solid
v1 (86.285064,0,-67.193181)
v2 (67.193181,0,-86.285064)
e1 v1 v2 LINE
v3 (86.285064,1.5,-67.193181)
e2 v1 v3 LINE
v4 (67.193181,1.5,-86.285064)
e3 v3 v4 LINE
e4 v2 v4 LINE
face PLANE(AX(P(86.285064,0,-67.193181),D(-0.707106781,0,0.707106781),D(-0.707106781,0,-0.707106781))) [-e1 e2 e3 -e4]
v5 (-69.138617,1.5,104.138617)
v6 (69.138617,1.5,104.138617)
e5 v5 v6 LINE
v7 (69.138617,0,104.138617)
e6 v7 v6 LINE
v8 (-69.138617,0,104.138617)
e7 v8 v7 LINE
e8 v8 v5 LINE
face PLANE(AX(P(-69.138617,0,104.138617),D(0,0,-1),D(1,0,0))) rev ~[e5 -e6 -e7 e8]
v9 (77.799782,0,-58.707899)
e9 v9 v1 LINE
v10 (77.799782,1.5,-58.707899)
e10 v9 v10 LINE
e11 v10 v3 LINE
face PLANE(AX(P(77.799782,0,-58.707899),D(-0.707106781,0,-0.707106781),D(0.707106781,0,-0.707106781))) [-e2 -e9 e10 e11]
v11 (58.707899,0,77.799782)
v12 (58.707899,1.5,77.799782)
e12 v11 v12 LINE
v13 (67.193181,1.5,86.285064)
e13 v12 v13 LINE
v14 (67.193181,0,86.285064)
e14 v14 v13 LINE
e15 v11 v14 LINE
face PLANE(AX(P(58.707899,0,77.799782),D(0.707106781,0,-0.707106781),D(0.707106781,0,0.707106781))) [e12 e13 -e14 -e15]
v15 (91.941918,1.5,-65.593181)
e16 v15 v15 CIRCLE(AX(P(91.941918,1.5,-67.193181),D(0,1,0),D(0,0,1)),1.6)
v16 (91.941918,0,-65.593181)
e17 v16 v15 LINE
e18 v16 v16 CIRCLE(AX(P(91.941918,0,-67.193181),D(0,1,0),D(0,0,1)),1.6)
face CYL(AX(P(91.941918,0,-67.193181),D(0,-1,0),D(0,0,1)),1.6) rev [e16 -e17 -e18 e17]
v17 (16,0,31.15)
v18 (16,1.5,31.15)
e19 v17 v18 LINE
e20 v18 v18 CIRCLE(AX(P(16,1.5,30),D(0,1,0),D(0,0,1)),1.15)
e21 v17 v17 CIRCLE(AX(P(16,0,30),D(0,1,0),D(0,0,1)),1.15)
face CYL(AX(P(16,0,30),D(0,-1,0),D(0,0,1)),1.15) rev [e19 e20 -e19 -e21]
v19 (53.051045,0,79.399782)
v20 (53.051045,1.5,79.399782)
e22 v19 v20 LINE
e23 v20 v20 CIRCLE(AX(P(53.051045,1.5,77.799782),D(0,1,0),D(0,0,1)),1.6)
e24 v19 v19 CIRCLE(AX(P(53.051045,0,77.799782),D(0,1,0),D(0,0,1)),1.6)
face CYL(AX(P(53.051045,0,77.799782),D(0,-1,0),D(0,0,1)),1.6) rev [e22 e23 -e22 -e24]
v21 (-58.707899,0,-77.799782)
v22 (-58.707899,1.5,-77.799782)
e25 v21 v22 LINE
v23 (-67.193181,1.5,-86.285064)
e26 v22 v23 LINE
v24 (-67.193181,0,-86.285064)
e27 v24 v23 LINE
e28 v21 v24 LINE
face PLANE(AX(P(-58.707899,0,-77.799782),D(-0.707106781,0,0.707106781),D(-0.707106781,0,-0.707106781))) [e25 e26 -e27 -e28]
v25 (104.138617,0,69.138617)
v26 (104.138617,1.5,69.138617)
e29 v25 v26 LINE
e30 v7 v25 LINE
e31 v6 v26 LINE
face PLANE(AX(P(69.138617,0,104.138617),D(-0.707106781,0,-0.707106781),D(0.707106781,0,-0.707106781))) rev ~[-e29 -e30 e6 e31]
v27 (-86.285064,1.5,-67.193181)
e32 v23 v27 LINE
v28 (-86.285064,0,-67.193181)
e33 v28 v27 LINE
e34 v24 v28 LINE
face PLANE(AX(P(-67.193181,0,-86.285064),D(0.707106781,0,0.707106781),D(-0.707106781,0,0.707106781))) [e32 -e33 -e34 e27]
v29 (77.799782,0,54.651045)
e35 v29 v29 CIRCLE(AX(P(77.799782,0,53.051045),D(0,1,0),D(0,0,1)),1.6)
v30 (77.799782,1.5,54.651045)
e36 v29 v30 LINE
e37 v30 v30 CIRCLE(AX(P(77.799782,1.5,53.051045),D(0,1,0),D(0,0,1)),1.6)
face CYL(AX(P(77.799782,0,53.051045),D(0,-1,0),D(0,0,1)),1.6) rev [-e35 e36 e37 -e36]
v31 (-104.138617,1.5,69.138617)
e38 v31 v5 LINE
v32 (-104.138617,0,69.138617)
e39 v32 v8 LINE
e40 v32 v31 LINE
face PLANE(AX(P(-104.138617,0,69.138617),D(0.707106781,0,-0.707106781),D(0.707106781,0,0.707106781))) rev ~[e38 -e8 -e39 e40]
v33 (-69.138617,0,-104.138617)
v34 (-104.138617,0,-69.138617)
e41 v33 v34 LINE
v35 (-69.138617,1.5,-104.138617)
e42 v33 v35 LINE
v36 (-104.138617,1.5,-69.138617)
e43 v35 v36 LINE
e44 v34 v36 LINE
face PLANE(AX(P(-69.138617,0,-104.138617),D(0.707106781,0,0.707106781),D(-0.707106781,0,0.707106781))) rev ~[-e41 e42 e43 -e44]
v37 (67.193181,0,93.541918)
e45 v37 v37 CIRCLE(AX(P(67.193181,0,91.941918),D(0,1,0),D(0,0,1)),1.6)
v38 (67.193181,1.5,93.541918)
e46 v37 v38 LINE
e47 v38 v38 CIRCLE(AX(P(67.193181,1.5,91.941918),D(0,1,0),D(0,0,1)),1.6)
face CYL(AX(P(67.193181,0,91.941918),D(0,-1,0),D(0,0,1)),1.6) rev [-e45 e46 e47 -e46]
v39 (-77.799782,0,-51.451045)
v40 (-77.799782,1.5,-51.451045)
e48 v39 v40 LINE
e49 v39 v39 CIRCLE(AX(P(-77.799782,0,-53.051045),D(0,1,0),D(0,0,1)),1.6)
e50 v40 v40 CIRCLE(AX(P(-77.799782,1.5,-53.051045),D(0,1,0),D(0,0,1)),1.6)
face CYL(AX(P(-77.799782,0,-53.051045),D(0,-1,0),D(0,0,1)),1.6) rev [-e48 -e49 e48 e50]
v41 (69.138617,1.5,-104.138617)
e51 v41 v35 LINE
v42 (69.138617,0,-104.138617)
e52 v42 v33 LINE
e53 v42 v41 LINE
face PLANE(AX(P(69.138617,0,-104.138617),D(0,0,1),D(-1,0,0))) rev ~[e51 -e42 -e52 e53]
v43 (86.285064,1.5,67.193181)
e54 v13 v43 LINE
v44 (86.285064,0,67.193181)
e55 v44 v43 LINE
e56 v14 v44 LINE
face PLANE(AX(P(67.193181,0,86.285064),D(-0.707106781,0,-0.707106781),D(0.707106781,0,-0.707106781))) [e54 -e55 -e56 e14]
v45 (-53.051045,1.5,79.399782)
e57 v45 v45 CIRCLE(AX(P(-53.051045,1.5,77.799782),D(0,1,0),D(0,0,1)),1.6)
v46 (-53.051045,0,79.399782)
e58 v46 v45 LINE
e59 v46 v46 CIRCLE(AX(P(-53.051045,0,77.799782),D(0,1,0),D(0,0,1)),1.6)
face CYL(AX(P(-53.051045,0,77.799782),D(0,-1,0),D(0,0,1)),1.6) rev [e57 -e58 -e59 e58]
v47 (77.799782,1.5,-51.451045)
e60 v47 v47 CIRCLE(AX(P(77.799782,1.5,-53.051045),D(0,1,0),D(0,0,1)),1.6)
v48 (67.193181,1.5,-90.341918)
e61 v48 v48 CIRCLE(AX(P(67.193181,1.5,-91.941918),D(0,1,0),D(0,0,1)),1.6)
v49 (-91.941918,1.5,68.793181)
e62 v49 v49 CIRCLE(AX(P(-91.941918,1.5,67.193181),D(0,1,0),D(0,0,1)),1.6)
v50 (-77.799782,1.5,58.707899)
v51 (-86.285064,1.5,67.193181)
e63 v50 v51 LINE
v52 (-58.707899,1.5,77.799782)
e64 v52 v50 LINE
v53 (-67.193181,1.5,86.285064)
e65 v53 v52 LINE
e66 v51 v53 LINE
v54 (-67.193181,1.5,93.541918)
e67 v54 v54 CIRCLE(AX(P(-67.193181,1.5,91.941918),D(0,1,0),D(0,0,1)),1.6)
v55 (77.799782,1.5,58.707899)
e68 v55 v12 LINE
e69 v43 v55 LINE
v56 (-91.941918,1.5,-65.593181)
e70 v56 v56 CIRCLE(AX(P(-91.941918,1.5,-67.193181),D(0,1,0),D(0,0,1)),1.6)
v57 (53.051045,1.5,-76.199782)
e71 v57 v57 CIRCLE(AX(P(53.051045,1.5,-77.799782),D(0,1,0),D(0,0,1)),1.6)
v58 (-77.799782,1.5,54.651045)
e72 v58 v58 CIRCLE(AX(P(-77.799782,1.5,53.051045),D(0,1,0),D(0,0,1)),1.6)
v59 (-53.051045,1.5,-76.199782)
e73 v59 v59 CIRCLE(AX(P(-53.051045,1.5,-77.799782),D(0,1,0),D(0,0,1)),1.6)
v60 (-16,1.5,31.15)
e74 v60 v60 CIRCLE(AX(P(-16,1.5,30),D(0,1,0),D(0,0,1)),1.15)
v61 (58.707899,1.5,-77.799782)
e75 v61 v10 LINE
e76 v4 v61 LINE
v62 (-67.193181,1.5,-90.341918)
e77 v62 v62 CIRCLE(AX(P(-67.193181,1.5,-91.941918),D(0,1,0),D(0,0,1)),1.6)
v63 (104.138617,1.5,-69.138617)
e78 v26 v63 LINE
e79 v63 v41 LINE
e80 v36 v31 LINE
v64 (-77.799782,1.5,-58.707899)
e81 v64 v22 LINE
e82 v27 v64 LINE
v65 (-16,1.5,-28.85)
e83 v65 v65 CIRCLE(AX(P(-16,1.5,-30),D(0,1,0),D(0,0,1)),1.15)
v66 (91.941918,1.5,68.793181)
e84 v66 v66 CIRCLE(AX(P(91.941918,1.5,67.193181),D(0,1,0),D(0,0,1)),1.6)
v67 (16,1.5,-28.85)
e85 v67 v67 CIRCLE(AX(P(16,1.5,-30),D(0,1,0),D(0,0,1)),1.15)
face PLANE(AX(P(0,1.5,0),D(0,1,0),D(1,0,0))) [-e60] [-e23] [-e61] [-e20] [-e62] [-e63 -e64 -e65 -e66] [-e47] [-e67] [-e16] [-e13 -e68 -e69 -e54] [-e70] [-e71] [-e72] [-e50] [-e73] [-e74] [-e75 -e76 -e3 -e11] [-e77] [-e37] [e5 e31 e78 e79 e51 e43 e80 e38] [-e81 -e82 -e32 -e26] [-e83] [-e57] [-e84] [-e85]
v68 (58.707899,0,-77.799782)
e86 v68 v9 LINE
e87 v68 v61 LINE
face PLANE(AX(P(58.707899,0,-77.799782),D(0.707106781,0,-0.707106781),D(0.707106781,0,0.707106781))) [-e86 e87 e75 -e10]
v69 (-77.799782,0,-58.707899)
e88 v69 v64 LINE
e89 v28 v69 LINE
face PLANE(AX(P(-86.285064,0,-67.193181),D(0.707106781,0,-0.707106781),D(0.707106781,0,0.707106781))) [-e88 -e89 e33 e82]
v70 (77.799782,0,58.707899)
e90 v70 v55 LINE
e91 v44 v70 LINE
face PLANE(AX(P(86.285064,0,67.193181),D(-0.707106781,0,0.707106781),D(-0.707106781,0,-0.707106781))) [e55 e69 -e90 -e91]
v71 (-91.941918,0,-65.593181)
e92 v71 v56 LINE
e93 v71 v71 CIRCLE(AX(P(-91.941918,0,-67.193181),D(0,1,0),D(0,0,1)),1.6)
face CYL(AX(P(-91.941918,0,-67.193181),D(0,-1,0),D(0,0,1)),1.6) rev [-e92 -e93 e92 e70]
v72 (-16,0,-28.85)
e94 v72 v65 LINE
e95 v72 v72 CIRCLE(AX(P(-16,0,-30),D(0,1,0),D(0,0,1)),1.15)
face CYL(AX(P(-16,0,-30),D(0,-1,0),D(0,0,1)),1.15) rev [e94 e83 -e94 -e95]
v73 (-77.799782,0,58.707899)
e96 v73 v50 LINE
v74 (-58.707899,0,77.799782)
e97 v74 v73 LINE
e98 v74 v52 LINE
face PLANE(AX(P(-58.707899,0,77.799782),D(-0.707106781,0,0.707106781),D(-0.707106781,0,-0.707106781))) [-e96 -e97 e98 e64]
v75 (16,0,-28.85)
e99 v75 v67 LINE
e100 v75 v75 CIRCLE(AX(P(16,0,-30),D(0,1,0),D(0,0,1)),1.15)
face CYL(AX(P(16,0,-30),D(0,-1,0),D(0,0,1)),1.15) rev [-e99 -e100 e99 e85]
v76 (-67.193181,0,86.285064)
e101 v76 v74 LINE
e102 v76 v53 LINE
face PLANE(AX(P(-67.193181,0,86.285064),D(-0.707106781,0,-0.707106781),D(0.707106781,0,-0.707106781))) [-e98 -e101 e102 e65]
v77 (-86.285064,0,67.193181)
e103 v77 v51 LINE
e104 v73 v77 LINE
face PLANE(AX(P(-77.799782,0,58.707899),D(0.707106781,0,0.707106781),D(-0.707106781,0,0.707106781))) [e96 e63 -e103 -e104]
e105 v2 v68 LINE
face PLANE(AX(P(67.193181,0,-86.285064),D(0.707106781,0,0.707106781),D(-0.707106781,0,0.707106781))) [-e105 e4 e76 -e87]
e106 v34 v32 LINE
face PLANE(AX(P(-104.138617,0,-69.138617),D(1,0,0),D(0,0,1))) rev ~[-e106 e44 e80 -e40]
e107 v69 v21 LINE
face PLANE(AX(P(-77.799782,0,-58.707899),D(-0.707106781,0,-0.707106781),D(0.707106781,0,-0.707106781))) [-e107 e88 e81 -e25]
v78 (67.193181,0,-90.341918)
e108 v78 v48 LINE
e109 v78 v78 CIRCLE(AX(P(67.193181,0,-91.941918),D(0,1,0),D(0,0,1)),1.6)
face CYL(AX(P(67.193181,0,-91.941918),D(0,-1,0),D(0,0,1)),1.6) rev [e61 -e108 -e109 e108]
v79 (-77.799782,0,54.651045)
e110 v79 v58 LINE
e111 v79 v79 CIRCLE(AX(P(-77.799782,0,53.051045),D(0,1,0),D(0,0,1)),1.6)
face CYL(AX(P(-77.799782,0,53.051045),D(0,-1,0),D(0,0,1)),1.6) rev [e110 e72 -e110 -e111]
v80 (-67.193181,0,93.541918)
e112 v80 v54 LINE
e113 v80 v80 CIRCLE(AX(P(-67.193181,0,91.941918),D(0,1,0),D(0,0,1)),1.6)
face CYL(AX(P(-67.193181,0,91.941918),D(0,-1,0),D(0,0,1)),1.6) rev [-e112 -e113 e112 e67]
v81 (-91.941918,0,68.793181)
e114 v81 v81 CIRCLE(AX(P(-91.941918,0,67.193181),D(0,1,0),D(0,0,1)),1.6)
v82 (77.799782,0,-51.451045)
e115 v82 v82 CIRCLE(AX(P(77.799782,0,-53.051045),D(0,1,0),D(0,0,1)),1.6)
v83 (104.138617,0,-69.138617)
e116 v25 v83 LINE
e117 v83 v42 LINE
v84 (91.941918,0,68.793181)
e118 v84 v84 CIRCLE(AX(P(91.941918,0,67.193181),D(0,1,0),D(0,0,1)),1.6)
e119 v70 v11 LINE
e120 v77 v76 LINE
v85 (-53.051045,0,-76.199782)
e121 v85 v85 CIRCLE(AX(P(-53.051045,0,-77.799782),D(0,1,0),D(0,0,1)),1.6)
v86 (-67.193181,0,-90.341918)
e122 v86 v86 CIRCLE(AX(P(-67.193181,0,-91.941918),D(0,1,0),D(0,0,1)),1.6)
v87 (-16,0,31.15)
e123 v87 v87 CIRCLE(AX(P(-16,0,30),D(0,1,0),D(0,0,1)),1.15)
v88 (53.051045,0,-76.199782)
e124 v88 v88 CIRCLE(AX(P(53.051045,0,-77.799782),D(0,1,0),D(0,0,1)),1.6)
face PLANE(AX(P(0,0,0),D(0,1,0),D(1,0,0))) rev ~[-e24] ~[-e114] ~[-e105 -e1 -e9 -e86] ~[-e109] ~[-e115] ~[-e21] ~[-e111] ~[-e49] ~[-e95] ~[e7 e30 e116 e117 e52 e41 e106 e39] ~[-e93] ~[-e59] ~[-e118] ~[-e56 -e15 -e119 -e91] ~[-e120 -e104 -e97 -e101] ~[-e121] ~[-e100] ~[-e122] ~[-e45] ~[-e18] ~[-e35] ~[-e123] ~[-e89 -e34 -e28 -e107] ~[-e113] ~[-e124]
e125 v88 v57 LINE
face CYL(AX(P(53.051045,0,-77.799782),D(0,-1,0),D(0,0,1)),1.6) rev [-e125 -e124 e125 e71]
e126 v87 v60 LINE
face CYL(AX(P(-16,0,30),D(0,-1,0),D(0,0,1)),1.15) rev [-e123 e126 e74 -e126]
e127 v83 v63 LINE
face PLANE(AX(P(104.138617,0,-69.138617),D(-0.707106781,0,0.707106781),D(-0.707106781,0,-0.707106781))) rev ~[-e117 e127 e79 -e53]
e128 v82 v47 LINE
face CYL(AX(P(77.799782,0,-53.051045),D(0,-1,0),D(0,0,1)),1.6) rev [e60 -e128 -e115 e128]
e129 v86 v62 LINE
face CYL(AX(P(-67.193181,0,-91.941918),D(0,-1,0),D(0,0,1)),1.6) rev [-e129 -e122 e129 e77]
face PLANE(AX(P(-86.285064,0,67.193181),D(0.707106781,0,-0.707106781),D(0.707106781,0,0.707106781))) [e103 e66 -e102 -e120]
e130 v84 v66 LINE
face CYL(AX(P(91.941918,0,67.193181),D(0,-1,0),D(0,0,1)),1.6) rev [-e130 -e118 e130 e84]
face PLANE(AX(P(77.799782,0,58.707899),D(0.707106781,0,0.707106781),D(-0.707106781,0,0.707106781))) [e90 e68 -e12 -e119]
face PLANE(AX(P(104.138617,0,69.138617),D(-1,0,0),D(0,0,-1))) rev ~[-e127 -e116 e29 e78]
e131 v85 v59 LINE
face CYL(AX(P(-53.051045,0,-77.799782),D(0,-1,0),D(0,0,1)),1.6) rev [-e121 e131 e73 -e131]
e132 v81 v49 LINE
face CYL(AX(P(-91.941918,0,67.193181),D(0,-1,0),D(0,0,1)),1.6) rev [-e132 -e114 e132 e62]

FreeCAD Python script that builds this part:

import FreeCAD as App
import Part
import Sketcher
from FreeCAD import Vector
Q = App.Units.Quantity


def add_polygon(sketch, points):
    """Adds a closed chain of lines whose ends are joined by coincident constraints."""
    first, n = sketch.GeometryCount, len(points)
    for a, b in zip(points, points[1:] + points[:1]):
        sketch.addGeometry(Part.LineSegment(App.Vector(*a, 0), App.Vector(*b, 0)), False)
    for i in range(n):
        sketch.addConstraint(Sketcher.Constraint("Coincident", first + i, 2, first + (i + 1) % n, 1))

doc = App.newDocument("Part")
body = doc.addObject("PartDesign::Body", "Body")

sketch1 = body.newObject("Sketcher::SketchObject", "Sketch")
sketch1.AttachmentSupport = (doc.getObject("XZ_Plane"), [""])
sketch1.MapMode = "FlatFace"
add_polygon(sketch1, [(104.138617, 69.138617), (104.138617, -69.138617), (69.138617, -104.138617), (-69.138617, -104.138617), (-104.138617, -69.138617), (-104.138617, 69.138617), (-69.138617, 104.138617), (69.138617, 104.138617)])
add_polygon(sketch1, [(-58.707899, 77.799782), (-67.193181, 86.285064), (-86.285064, 67.193181), (-77.799782, 58.707899)])
sketch1.addGeometry(Part.Circle(Vector(-67.193181, 91.941918, 0), Vector(0, 0, 1), 1.6), False)
sketch1.addGeometry(Part.Circle(Vector(-53.051045, 77.799782, 0), Vector(0, 0, 1), 1.6), False)
sketch1.addGeometry(Part.Circle(Vector(-91.941918, 67.193181, 0), Vector(0, 0, 1), 1.6), False)
sketch1.addGeometry(Part.Circle(Vector(-77.799782, 53.051045, 0), Vector(0, 0, 1), 1.6), False)
sketch1.addGeometry(Part.Circle(Vector(-16, 30, 0), Vector(0, 0, 1), 1.15), False)
sketch1.addGeometry(Part.Circle(Vector(67.193181, 91.941918, 0), Vector(0, 0, 1), 1.6), False)
sketch1.addGeometry(Part.Circle(Vector(53.051045, 77.799782, 0), Vector(0, 0, 1), 1.6), False)
add_polygon(sketch1, [(77.799782, 58.707899), (86.285064, 67.193181), (67.193181, 86.285064), (58.707899, 77.799782)])
sketch1.addGeometry(Part.Circle(Vector(91.941918, 67.193181, 0), Vector(0, 0, 1), 1.6), False)
sketch1.addGeometry(Part.Circle(Vector(77.799782, 53.051045, 0), Vector(0, 0, 1), 1.6), False)
sketch1.addGeometry(Part.Circle(Vector(16, 30, 0), Vector(0, 0, 1), 1.15), False)
sketch1.addGeometry(Part.Circle(Vector(-16, -30, 0), Vector(0, 0, 1), 1.15), False)
sketch1.addGeometry(Part.Circle(Vector(-77.799782, -53.051045, 0), Vector(0, 0, 1), 1.6), False)
sketch1.addGeometry(Part.Circle(Vector(-91.941918, -67.193181, 0), Vector(0, 0, 1), 1.6), False)
add_polygon(sketch1, [(-77.799782, -58.707899), (-86.285064, -67.193181), (-67.193181, -86.285064), (-58.707899, -77.799782)])
sketch1.addGeometry(Part.Circle(Vector(-53.051045, -77.799782, 0), Vector(0, 0, 1), 1.6), False)
sketch1.addGeometry(Part.Circle(Vector(-67.193181, -91.941918, 0), Vector(0, 0, 1), 1.6), False)
sketch1.addGeometry(Part.Circle(Vector(16, -30, 0), Vector(0, 0, 1), 1.15), False)
sketch1.addGeometry(Part.Circle(Vector(77.799782, -53.051045, 0), Vector(0, 0, 1), 1.6), False)
sketch1.addGeometry(Part.Circle(Vector(91.941918, -67.193181, 0), Vector(0, 0, 1), 1.6), False)
sketch1.addGeometry(Part.Circle(Vector(53.051045, -77.799782, 0), Vector(0, 0, 1), 1.6), False)
sketch1.addGeometry(Part.Circle(Vector(67.193181, -91.941918, 0), Vector(0, 0, 1), 1.6), False)
add_polygon(sketch1, [(86.285064, -67.193181), (77.799782, -58.707899), (58.707899, -77.799782), (67.193181, -86.285064)])
sketch1.addConstraint(Sketcher.Constraint("Vertical", 0))
sketch1.addConstraint(Sketcher.Constraint("Horizontal", 2))
sketch1.addConstraint(Sketcher.Constraint("Vertical", 4))
sketch1.addConstraint(Sketcher.Constraint("Horizontal", 6))
sketch1.addConstraint(Sketcher.Constraint("Equal", 12, 13))
sketch1.addConstraint(Sketcher.Constraint("Equal", 13, 14))
sketch1.addConstraint(Sketcher.Constraint("Equal", 14, 15))
sketch1.addConstraint(Sketcher.Constraint("Equal", 15, 17))
sketch1.addConstraint(Sketcher.Constraint("Equal", 17, 18))
sketch1.addConstraint(Sketcher.Constraint("Equal", 18, 23))
sketch1.addConstraint(Sketcher.Constraint("Equal", 23, 24))
sketch1.addConstraint(Sketcher.Constraint("Equal", 16, 25))
sketch1.addConstraint(Sketcher.Constraint("Equal", 25, 26))
sketch1.addConstraint(Sketcher.Constraint("Equal", 24, 27))
sketch1.addConstraint(Sketcher.Constraint("Equal", 27, 28))
sketch1.addConstraint(Sketcher.Constraint("Equal", 28, 33))
sketch1.addConstraint(Sketcher.Constraint("Equal", 33, 34))
sketch1.addConstraint(Sketcher.Constraint("Equal", 26, 35))
sketch1.addConstraint(Sketcher.Constraint("Equal", 34, 36))
sketch1.addConstraint(Sketcher.Constraint("Equal", 36, 37))
sketch1.addConstraint(Sketcher.Constraint("Equal", 37, 38))
sketch1.addConstraint(Sketcher.Constraint("Equal", 38, 39))
sketch1.addConstraint(Sketcher.Constraint("Symmetric", 25, 3, 26, 3, -1, 1))
sketch1.addConstraint(Sketcher.Constraint("Symmetric", 24, 3, 27, 3, -1, 1))
sketch1.addConstraint(Sketcher.Constraint("Symmetric", 23, 3, 28, 3, -1, 1))
sketch1.addConstraint(Sketcher.Constraint("Symmetric", 18, 3, 33, 3, -1, 1))
sketch1.addConstraint(Sketcher.Constraint("Symmetric", 17, 3, 34, 3, -1, 1))
sketch1.addConstraint(Sketcher.Constraint("Symmetric", 16, 3, 35, 3, -1, 1))
sketch1.addConstraint(Sketcher.Constraint("Symmetric", 15, 3, 36, 3, -1, 1))
sketch1.addConstraint(Sketcher.Constraint("Symmetric", 14, 3, 37, 3, -1, 1))
sketch1.addConstraint(Sketcher.Constraint("Symmetric", 13, 3, 38, 3, -1, 1))
sketch1.addConstraint(Sketcher.Constraint("Symmetric", 12, 3, 39, 3, -1, 1))
sketch1.addConstraint(Sketcher.Constraint("Symmetric", 0, 2, 4, 2, -1, 1))
sketch1.addConstraint(Sketcher.Constraint("Symmetric", 1, 2, 5, 2, -1, 1))
sketch1.addConstraint(Sketcher.Constraint("Symmetric", 19, 2, 29, 2, -1, 1))
sketch1.addConstraint(Sketcher.Constraint("Symmetric", 20, 2, 30, 2, -1, 1))
sketch1.addConstraint(Sketcher.Constraint("Symmetric", 21, 2, 31, 2, -1, 1))
sketch1.addConstraint(Sketcher.Constraint("Symmetric", 22, 2, 32, 2, -1, 1))
sketch1.addConstraint(Sketcher.Constraint("Symmetric", 10, 2, 40, 2, -1, 1))
sketch1.addConstraint(Sketcher.Constraint("Symmetric", 11, 2, 41, 2, -1, 1))
sketch1.addConstraint(Sketcher.Constraint("Symmetric", 8, 2, 42, 2, -1, 1))
sketch1.addConstraint(Sketcher.Constraint("Symmetric", 9, 2, 43, 2, -1, 1))
sketch1.addConstraint(Sketcher.Constraint("Symmetric", 12, 3, 17, 3, -2))
sketch1.addConstraint(Sketcher.Constraint("Symmetric", 13, 3, 18, 3, -2))
sketch1.addConstraint(Sketcher.Constraint("Symmetric", 14, 3, 23, 3, -2))
sketch1.addConstraint(Sketcher.Constraint("Symmetric", 15, 3, 24, 3, -2))
sketch1.addConstraint(Sketcher.Constraint("Symmetric", 16, 3, 25, 3, -2))
sketch1.addConstraint(Sketcher.Constraint("Symmetric", 9, 2, 19, 2, -2))
sketch1.addConstraint(Sketcher.Constraint("Symmetric", 8, 2, 20, 2, -2))
sketch1.addConstraint(Sketcher.Constraint("Symmetric", 11, 2, 21, 2, -2))
sketch1.addConstraint(Sketcher.Constraint("Symmetric", 10, 2, 22, 2, -2))
sketch1.addConstraint(Sketcher.Constraint("Perpendicular", 1, 3))
sketch1.addConstraint(Sketcher.Constraint("Perpendicular", 5, 7))
sketch1.addConstraint(Sketcher.Constraint("Parallel", 7, 8))
sketch1.addConstraint(Sketcher.Constraint("Perpendicular", 8, 9))
sketch1.addConstraint(Sketcher.Constraint("Perpendicular", 9, 10))
sketch1.addConstraint(Sketcher.Constraint("Perpendicular", 10, 11))
sketch1.addConstraint(Sketcher.Constraint("Parallel", 11, 19))
sketch1.addConstraint(Sketcher.Constraint("Horizontal", 0, 2, 3, 2))
sketch1.addConstraint(Sketcher.Constraint("Horizontal", 4, 2, 7, 2))
sketch1.addConstraint(Sketcher.Constraint("Horizontal", 23, 3, 9, 2))
sketch1.addConstraint(Sketcher.Constraint("Horizontal", 18, 3, 11, 2))
sketch1.addConstraint(Sketcher.Constraint("Vertical", 34, 3, 8, 2))
sketch1.addConstraint(Sketcher.Constraint("Vertical", 27, 3, 10, 2))
sketch1.addConstraint(Sketcher.Constraint("Equal", 6, 0))
sketch1.addConstraint(Sketcher.Constraint("Diameter", 12, Q("3.2 mm")))
sketch1.addConstraint(Sketcher.Constraint("Diameter", 16, Q("2.3 mm")))
sketch1.addConstraint(Sketcher.Constraint("Distance", 8, Q("12 mm")))
sketch1.addConstraint(Sketcher.Constraint("Distance", 9, Q("27 mm")))
sketch1.addConstraint(Sketcher.Constraint("DistanceX", 16, 3, -1, 1, Q("16 mm")))
sketch1.addConstraint(Sketcher.Constraint("DistanceY", -1, 1, 16, 3, Q("30 mm")))
sketch1.addConstraint(Sketcher.Constraint("DistanceX", 1, 2, 0, 2, Q("35 mm")))
sketch1.addConstraint(Sketcher.Constraint("DistanceY", -1, 1, 10, 2, Q("58.707899 mm")))
sketch1.addConstraint(Sketcher.Constraint("DistanceX", 11, 2, -1, 1, Q("58.707899 mm")))
sketch1.addConstraint(Sketcher.Constraint("DistanceX", 14, 3, 17, 3, Q("159.135099 mm")))
sketch1.addConstraint(Sketcher.Constraint("DistanceX", 37, 3, 0, 2, Q("12.196699 mm")))
sketch1.addConstraint(Sketcher.Constraint("DistanceY", 39, 3, 0, 2, Q("22.803301 mm")))
sketch1.addConstraint(Sketcher.Constraint("DistanceX", 13, 3, 18, 3, Q("106.10209 mm")))
sketch1.addConstraint(Sketcher.Constraint("DistanceY", 27, 3, 15, 3, Q("106.10209 mm")))
pad1 = body.newObject("PartDesign::Pad", "Pad")
pad1.Profile = sketch1
pad1.Length = 1.5
pad1.Reversed = True

doc.recompute()
